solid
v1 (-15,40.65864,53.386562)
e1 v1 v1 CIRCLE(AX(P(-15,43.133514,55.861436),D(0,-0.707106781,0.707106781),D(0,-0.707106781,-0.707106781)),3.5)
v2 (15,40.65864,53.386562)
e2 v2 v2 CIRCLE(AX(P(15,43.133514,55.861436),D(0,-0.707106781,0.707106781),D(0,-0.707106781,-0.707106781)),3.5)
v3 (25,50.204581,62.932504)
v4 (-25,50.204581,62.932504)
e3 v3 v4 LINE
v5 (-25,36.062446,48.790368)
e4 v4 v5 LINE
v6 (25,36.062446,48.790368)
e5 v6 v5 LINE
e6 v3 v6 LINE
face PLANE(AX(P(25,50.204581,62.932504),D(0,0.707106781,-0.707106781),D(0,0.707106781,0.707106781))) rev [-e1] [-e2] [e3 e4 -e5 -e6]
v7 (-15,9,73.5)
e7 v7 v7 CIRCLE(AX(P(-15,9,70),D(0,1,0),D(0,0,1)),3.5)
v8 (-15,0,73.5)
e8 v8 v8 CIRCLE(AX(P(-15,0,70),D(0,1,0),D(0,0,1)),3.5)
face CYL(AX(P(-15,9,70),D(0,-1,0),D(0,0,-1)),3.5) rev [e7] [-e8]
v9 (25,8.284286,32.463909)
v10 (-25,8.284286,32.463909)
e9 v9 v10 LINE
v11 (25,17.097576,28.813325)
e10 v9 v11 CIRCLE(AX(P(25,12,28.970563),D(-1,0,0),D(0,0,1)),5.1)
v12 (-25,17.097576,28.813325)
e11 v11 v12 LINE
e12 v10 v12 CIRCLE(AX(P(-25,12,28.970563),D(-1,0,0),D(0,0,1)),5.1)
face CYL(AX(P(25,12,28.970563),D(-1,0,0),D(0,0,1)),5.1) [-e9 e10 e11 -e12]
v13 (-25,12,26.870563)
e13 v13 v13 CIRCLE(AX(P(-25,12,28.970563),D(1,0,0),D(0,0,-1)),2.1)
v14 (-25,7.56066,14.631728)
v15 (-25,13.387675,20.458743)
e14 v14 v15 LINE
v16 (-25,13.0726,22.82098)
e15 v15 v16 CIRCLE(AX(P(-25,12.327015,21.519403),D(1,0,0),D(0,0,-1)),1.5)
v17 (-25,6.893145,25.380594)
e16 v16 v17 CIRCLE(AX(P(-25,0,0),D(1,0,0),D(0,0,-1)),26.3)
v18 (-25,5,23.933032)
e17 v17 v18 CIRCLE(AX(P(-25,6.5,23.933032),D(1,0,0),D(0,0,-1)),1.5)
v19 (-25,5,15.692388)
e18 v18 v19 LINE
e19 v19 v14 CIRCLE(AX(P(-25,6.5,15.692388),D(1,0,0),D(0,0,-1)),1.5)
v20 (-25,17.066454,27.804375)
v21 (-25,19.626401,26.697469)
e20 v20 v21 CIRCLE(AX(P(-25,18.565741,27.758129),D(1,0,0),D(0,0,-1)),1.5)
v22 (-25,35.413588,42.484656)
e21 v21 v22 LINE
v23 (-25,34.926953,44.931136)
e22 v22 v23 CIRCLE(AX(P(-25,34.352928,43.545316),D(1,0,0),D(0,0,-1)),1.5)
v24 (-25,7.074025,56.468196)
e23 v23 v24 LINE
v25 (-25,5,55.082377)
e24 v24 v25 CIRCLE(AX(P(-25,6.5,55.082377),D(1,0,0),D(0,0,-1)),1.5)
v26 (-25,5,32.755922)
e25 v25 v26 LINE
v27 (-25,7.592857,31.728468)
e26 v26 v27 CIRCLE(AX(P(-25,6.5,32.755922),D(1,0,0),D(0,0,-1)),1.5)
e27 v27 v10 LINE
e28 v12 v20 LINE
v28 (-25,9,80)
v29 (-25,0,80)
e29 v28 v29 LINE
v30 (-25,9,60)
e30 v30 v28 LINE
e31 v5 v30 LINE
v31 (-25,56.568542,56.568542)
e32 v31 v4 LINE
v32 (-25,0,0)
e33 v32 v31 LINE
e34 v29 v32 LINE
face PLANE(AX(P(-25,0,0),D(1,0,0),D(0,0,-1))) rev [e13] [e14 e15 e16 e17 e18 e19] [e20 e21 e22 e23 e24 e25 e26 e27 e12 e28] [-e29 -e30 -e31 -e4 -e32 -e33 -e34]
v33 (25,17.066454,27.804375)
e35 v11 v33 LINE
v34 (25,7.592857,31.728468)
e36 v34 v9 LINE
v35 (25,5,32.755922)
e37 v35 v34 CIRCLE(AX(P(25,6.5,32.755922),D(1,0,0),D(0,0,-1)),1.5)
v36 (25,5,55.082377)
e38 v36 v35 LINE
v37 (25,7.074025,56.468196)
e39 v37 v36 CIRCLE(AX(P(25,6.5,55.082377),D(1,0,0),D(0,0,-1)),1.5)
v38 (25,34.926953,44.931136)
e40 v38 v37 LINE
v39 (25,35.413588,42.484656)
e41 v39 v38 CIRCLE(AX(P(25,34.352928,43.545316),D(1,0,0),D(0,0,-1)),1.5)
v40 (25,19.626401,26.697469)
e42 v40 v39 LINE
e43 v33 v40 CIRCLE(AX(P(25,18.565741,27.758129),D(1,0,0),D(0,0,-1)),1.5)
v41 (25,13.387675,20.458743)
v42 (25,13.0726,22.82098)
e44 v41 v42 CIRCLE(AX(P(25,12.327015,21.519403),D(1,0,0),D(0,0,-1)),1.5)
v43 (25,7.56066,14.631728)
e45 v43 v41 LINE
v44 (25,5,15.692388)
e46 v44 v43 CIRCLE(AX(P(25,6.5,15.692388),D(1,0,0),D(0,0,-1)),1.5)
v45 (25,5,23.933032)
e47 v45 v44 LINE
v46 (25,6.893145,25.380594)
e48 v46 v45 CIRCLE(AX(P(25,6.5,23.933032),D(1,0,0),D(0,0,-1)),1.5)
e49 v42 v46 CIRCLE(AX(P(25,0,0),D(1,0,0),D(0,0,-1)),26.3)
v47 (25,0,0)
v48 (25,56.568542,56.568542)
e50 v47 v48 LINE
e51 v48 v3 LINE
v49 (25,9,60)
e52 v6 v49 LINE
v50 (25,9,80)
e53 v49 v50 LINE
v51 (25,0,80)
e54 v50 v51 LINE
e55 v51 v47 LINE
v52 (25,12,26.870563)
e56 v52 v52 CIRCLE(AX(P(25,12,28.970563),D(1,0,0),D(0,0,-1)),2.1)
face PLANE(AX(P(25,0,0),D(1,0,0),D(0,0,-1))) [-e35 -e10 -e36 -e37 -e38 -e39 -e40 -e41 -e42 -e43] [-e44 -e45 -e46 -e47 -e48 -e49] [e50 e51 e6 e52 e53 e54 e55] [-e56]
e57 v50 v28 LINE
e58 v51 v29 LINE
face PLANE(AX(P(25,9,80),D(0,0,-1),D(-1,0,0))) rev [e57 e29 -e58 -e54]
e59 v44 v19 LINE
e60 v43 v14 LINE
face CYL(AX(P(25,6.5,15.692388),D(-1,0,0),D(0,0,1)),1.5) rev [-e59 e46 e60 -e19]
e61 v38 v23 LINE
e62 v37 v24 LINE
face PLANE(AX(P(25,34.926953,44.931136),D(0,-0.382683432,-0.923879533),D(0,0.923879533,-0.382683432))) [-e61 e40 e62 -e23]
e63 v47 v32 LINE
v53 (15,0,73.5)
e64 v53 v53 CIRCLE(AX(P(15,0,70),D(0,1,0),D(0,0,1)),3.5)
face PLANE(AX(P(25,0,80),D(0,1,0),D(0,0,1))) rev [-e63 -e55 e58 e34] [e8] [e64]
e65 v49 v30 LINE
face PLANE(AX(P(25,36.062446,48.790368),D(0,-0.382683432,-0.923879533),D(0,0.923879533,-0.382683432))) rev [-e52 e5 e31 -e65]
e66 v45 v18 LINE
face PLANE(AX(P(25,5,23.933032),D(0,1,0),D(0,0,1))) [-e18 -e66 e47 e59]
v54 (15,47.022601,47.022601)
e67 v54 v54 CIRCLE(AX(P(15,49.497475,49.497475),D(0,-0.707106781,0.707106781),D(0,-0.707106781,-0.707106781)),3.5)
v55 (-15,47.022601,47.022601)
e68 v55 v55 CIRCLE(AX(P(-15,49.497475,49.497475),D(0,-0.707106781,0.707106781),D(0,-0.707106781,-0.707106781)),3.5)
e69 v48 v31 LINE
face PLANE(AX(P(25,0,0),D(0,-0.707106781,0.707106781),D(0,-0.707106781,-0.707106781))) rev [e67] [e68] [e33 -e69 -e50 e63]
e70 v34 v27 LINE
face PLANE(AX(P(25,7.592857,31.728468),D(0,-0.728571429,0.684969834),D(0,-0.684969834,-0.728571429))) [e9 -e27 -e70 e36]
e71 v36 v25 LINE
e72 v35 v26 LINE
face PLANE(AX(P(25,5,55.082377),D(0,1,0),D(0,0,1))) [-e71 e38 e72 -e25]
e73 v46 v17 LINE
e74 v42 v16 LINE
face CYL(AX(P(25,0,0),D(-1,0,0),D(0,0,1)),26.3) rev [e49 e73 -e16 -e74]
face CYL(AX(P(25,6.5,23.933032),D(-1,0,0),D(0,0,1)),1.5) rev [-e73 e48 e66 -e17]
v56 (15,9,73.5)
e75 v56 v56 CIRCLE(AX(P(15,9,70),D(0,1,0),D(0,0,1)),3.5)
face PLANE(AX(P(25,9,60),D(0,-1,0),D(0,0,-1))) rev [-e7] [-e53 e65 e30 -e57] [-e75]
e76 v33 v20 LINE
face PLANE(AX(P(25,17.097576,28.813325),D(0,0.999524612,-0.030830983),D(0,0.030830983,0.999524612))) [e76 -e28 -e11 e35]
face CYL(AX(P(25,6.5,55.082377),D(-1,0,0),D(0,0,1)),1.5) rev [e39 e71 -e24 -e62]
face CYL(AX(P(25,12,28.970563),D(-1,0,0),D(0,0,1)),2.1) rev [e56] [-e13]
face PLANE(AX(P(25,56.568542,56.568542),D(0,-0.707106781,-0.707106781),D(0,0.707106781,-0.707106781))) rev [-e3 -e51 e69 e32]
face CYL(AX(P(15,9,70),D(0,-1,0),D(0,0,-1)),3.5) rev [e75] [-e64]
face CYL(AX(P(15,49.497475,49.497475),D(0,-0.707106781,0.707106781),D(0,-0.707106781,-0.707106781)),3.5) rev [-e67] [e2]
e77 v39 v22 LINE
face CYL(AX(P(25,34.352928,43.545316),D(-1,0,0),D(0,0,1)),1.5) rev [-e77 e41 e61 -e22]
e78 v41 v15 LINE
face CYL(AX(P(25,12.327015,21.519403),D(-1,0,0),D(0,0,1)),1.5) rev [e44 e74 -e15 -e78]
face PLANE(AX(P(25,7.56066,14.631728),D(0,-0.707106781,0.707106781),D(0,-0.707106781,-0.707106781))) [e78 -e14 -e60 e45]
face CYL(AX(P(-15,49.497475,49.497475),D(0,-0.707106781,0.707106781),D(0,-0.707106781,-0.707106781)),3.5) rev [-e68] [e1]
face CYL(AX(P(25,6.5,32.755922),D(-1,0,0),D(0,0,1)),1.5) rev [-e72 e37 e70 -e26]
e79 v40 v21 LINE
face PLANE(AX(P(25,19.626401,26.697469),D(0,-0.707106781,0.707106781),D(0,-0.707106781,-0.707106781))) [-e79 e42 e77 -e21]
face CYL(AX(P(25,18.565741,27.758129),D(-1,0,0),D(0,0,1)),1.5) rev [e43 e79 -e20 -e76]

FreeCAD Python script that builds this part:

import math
import FreeCAD as App
import Part
import Sketcher
from FreeCAD import Vector
Q = App.Units.Quantity

doc = App.newDocument("Part")
params = doc.addObject("Spreadsheet::Sheet", "Params")
for row, (alias, value) in enumerate([
    ("sketch1_diameter", "4.2 mm"),
    ("sketch1_radius", "1.5 mm"),
    ("sketch1_radius2", "26.3 mm"),
    ("sketch1_radius3", "5.1 mm"),
    ("sketch1_width", "9 mm"),
    ("pad1_length", "25 mm"),
    ("pad1_length2", "25 mm"),
    ("sketch2_diameter", "7 mm"),
    ("pocket1_length", "9 mm"),
    ("sketch3_diameter", "7 mm"),
    ("pocket2_length", "9 mm"),
    ("sketch4_diameter", "7 mm"),
    ("pocket3_length", "9 mm"),
    ("sketch5_diameter", "7 mm"),
    ("pocket4_length", "9 mm"),
], start=1):
    params.set(f"A{row}", alias)
    params.set(f"B{row}", "=" + value)
    params.setAlias(f"B{row}", alias)

body = doc.addObject("PartDesign::Body", "Body")

sketch1 = doc.addObject("Sketcher::SketchObject", "Sketch")
body.addObject(sketch1)
sketch1.AttachmentSupport = (doc.YZ_Plane, [""])
sketch1.MapMode = "FlatFace"
sketch1.addGeometry([
    Part.LineSegment(Vector(0, 80, 0), Vector(0, 0, 0)),
    Part.LineSegment(Vector(0, 0, 0), Vector(56.6, 56.6, 0)),
    Part.LineSegment(Vector(56.6, 56.6, 0), Vector(50.2, 62.9, 0)),
    Part.LineSegment(Vector(50.2, 62.9, 0), Vector(36.1, 48.8, 0)),
    Part.LineSegment(Vector(36.1, 48.8, 0), Vector(9, 60, 0)),
    Part.LineSegment(Vector(9, 60, 0), Vector(9, 80, 0)),
    Part.LineSegment(Vector(9, 80, 0), Vector(0, 80, 0)),
    Part.Circle(Vector(12, 29, 0), Vector(0, 0, 1), 2.1),
    Part.LineSegment(Vector(5, 15.7, 0), Vector(5, 23.9, 0)),
    Part.ArcOfCircle(Part.Circle(Vector(6.5, 23.9, 0), Vector(0, 0, 1), 1.5), math.radians(75), math.radians(180)),
    Part.ArcOfCircle(Part.Circle(Vector(0, 0, 0), Vector(0, 0, 1), 26.3), math.radians(60.19), math.radians(74.81)),
    Part.ArcOfCircle(Part.Circle(Vector(12.3, 21.5, 0), Vector(0, 0, 1), 1.5), math.radians(-45), math.radians(60)),
    Part.LineSegment(Vector(13.4, 20.5, 0), Vector(7.6, 14.6, 0)),
    Part.ArcOfCircle(Part.Circle(Vector(6.5, 15.7, 0), Vector(0, 0, 1), 1.5), math.radians(-180), math.radians(-45)),
    Part.LineSegment(Vector(5, 32.8, 0), Vector(5, 55.1, 0)),
    Part.ArcOfCircle(Part.Circle(Vector(6.5, 55.1, 0), Vector(0, 0, 1), 1.5), math.radians(67), math.radians(180)),
    Part.LineSegment(Vector(7.1, 56.5, 0), Vector(34.9, 44.9, 0)),
    Part.ArcOfCircle(Part.Circle(Vector(34.4, 43.5, 0), Vector(0, 0, 1), 1.5), math.radians(-45), math.radians(67)),
    Part.LineSegment(Vector(35.4, 42.5, 0), Vector(19.6, 26.7, 0)),
    Part.ArcOfCircle(Part.Circle(Vector(18.6, 27.8, 0), Vector(0, 0, 1), 1.5), math.radians(178), math.radians(315)),
    Part.LineSegment(Vector(17.1, 27.8, 0), Vector(17.1, 28.8, 0)),
    Part.ArcOfCircle(Part.Circle(Vector(12, 29, 0), Vector(0, 0, 1), 5.1), math.radians(-2), math.radians(137)),
    Part.LineSegment(Vector(8.3, 32.5, 0), Vector(7.6, 31.7, 0)),
    Part.ArcOfCircle(Part.Circle(Vector(6.5, 32.8, 0), Vector(0, 0, 1), 1.5), math.radians(-180), math.radians(-43)),
], False)
sketch1.addConstraint([
    Sketcher.Constraint("Coincident", 0, 2, 1, 1),
    Sketcher.Constraint("Coincident", 1, 2, 2, 1),
    Sketcher.Constraint("Coincident", 2, 2, 3, 1),
    Sketcher.Constraint("Coincident", 3, 2, 4, 1),
    Sketcher.Constraint("Coincident", 4, 2, 5, 1),
    Sketcher.Constraint("Coincident", 5, 2, 6, 1),
    Sketcher.Constraint("Coincident", 6, 2, 0, 1),
    Sketcher.Constraint("Tangent", 8, 2, 9, 2),
    Sketcher.Constraint("Tangent", 9, 1, 10, 2),
    Sketcher.Constraint("Tangent", 10, 1, 11, 2),
    Sketcher.Constraint("Tangent", 11, 1, 12, 1),
    Sketcher.Constraint("Tangent", 12, 2, 13, 2),
    Sketcher.Constraint("Tangent", 13, 1, 8, 1),
    Sketcher.Constraint("Tangent", 14, 2, 15, 2),
    Sketcher.Constraint("Tangent", 15, 1, 16, 1),
    Sketcher.Constraint("Tangent", 16, 2, 17, 2),
    Sketcher.Constraint("Tangent", 17, 1, 18, 1),
    Sketcher.Constraint("Tangent", 18, 2, 19, 2),
    Sketcher.Constraint("Tangent", 19, 1, 20, 1),
    Sketcher.Constraint("Tangent", 20, 2, 21, 1),
    Sketcher.Constraint("Tangent", 21, 2, 22, 1),
    Sketcher.Constraint("Tangent", 22, 2, 23, 2),
    Sketcher.Constraint("Tangent", 23, 1, 14, 1),
    Sketcher.Constraint("Vertical", 0),
    Sketcher.Constraint("Vertical", 5),
    Sketcher.Constraint("Horizontal", 6),
    Sketcher.Constraint("Vertical", 8),
    Sketcher.Constraint("Vertical", 14),
    Sketcher.Constraint("Coincident", 10, 3, -1, 1),
    Sketcher.Constraint("Coincident", 0, 2, -1, 1),
    Sketcher.Constraint("Coincident", 21, 3, 7, 3),
    Sketcher.Constraint("Equal", 9, 11),
    Sketcher.Constraint("Equal", 11, 13),
    Sketcher.Constraint("Equal", 13, 15),
    Sketcher.Constraint("Equal", 15, 17),
    Sketcher.Constraint("Equal", 17, 19),
    Sketcher.Constraint("Equal", 19, 23),
    Sketcher.Constraint("Perpendicular", 1, 2),
    Sketcher.Constraint("Perpendicular", 2, 3),
    Sketcher.Constraint("Parallel", 3, 12),
    Sketcher.Constraint("Parallel", 4, 16),
    Sketcher.Constraint("Parallel", 12, 18),
    Sketcher.Constraint("Vertical", 13, 3, 15, 3),
    Sketcher.Constraint("Equal", 20, 22),
    Sketcher.Constraint("Diameter", 7, 4.2),
    Sketcher.Constraint("Radius", 9, 1.5),
    Sketcher.Constraint("Radius", 10, 26.3),
    Sketcher.Constraint("Radius", 21, 5.1),
    Sketcher.Constraint("DistanceX", 6, 2, 6, 1, 9.0),
    Sketcher.Constraint("DistanceY", 0, 2, 0, 1, 80.0),
    Sketcher.Constraint("DistanceY", 5, 1, 5, 2, 20.0),
    Sketcher.Constraint("Angle", 1, Q("45 deg")),
    Sketcher.Constraint("Distance", 1, 80.0),
    Sketcher.Constraint("Distance", 2, 9.0),
    Sketcher.Constraint("Distance", 3, 20.0),
    Sketcher.Constraint("DistanceX", -1, 1, 7, 3, 12.0),
    Sketcher.Constraint("DistanceX", -1, 1, 8, 2, 5.0),
    Sketcher.Constraint("DistanceX", -1, 1, 10, 1, 13.0726),
    Sketcher.Constraint("DistanceX", -1, 1, 18, 2, 19.626401),
    Sketcher.Constraint("Distance", 20, 1.009429),
    Sketcher.Constraint("DistanceY", 14, 1, 14, 2, 22.326454),
    Sketcher.Constraint("DistanceY", -1, 1, 19, 3, 27.758129),
])
sketch1.setExpression("Constraints[44]", "Params.sketch1_diameter")
sketch1.setExpression("Constraints[45]", "Params.sketch1_radius")
sketch1.setExpression("Constraints[46]", "Params.sketch1_radius2")
sketch1.setExpression("Constraints[47]", "Params.sketch1_radius3")
sketch1.setExpression("Constraints[48]", "Params.sketch1_width")
pad1 = doc.addObject("PartDesign::Pad", "Pad")
body.addObject(pad1)
pad1.Profile = sketch1
pad1.Type = "TwoLengths"
pad1.setExpression("Length", "Params.pad1_length")
pad1.setExpression("Length2", "Params.pad1_length2")

sketch2 = doc.addObject("Sketcher::SketchObject", "Sketch001")
body.addObject(sketch2)
sketch2.Placement = App.Placement(Vector(0, -6.363961, 6.363961), App.Rotation(Vector(1, 0, 0), Vector(0, 0.707106781, 0.707106781), Vector(0, -0.707106781, 0.707106781), "ZXY"))
sketch2.addGeometry(Part.Circle(Vector(-15, 70, 0), Vector(0, 0, 1), 3.5), False)
sketch2.addConstraint([
    Sketcher.Constraint("Diameter", 0, 7.0),
    Sketcher.Constraint("DistanceX", 0, 3, -1, 1, 15.0),
    Sketcher.Constraint("DistanceY", -1, 1, 0, 3, 70.0),
])
sketch2.setExpression("Constraints[0]", "Params.sketch2_diameter")
pocket1 = doc.addObject("PartDesign::Pocket", "Pocket")
body.addObject(pocket1)
pocket1.Profile = sketch2
pocket1.setExpression("Length", "Params.pocket1_length")

sketch3 = doc.addObject("Sketcher::SketchObject", "Sketch002")
body.addObject(sketch3)
sketch3.Placement = App.Placement(Vector(0, -6.363961, 6.363961), App.Rotation(Vector(1, 0, 0), Vector(0, 0.707106781, 0.707106781), Vector(0, -0.707106781, 0.707106781), "ZXY"))
sketch3.addGeometry(Part.Circle(Vector(15, 70, 0), Vector(0, 0, 1), 3.5), False)
sketch3.addConstraint([
    Sketcher.Constraint("Diameter", 0, 7.0),
    Sketcher.Constraint("DistanceX", -1, 1, 0, 3, 15.0),
    Sketcher.Constraint("DistanceY", -1, 1, 0, 3, 70.0),
])
sketch3.setExpression("Constraints[0]", "Params.sketch3_diameter")
pocket2 = doc.addObject("PartDesign::Pocket", "Pocket001")
body.addObject(pocket2)
pocket2.Profile = sketch3
pocket2.setExpression("Length", "Params.pocket2_length")

sketch4 = doc.addObject("Sketcher::SketchObject", "Sketch003")
body.addObject(sketch4)
sketch4.AttachmentSupport = (doc.XZ_Plane, [""])
sketch4.MapMode = "FlatFace"
sketch4.addGeometry(Part.Circle(Vector(-15, 70, 0), Vector(0, 0, 1), 3.5), False)
sketch4.addConstraint([
    Sketcher.Constraint("Diameter", 0, 7.0),
    Sketcher.Constraint("DistanceX", 0, 3, -1, 1, 15.0),
    Sketcher.Constraint("DistanceY", -1, 1, 0, 3, 70.0),
])
sketch4.setExpression("Constraints[0]", "Params.sketch4_diameter")
pocket3 = doc.addObject("PartDesign::Pocket", "Pocket002")
body.addObject(pocket3)
pocket3.Profile = sketch4
pocket3.setExpression("Length", "Params.pocket3_length")

sketch5 = doc.addObject("Sketcher::SketchObject", "Sketch004")
body.addObject(sketch5)
sketch5.AttachmentSupport = (doc.XZ_Plane, [""])
sketch5.MapMode = "FlatFace"
sketch5.addGeometry(Part.Circle(Vector(15, 70, 0), Vector(0, 0, 1), 3.5), False)
sketch5.addConstraint([
    Sketcher.Constraint("Diameter", 0, 7.0),
    Sketcher.Constraint("DistanceX", -1, 1, 0, 3, 15.0),
    Sketcher.Constraint("DistanceY", -1, 1, 0, 3, 70.0),
])
sketch5.setExpression("Constraints[0]", "Params.sketch5_diameter")
pocket4 = doc.addObject("PartDesign::Pocket", "Pocket003")
body.addObject(pocket4)
pocket4.Profile = sketch5
pocket4.setExpression("Length", "Params.pocket4_length")

doc.recompute()
